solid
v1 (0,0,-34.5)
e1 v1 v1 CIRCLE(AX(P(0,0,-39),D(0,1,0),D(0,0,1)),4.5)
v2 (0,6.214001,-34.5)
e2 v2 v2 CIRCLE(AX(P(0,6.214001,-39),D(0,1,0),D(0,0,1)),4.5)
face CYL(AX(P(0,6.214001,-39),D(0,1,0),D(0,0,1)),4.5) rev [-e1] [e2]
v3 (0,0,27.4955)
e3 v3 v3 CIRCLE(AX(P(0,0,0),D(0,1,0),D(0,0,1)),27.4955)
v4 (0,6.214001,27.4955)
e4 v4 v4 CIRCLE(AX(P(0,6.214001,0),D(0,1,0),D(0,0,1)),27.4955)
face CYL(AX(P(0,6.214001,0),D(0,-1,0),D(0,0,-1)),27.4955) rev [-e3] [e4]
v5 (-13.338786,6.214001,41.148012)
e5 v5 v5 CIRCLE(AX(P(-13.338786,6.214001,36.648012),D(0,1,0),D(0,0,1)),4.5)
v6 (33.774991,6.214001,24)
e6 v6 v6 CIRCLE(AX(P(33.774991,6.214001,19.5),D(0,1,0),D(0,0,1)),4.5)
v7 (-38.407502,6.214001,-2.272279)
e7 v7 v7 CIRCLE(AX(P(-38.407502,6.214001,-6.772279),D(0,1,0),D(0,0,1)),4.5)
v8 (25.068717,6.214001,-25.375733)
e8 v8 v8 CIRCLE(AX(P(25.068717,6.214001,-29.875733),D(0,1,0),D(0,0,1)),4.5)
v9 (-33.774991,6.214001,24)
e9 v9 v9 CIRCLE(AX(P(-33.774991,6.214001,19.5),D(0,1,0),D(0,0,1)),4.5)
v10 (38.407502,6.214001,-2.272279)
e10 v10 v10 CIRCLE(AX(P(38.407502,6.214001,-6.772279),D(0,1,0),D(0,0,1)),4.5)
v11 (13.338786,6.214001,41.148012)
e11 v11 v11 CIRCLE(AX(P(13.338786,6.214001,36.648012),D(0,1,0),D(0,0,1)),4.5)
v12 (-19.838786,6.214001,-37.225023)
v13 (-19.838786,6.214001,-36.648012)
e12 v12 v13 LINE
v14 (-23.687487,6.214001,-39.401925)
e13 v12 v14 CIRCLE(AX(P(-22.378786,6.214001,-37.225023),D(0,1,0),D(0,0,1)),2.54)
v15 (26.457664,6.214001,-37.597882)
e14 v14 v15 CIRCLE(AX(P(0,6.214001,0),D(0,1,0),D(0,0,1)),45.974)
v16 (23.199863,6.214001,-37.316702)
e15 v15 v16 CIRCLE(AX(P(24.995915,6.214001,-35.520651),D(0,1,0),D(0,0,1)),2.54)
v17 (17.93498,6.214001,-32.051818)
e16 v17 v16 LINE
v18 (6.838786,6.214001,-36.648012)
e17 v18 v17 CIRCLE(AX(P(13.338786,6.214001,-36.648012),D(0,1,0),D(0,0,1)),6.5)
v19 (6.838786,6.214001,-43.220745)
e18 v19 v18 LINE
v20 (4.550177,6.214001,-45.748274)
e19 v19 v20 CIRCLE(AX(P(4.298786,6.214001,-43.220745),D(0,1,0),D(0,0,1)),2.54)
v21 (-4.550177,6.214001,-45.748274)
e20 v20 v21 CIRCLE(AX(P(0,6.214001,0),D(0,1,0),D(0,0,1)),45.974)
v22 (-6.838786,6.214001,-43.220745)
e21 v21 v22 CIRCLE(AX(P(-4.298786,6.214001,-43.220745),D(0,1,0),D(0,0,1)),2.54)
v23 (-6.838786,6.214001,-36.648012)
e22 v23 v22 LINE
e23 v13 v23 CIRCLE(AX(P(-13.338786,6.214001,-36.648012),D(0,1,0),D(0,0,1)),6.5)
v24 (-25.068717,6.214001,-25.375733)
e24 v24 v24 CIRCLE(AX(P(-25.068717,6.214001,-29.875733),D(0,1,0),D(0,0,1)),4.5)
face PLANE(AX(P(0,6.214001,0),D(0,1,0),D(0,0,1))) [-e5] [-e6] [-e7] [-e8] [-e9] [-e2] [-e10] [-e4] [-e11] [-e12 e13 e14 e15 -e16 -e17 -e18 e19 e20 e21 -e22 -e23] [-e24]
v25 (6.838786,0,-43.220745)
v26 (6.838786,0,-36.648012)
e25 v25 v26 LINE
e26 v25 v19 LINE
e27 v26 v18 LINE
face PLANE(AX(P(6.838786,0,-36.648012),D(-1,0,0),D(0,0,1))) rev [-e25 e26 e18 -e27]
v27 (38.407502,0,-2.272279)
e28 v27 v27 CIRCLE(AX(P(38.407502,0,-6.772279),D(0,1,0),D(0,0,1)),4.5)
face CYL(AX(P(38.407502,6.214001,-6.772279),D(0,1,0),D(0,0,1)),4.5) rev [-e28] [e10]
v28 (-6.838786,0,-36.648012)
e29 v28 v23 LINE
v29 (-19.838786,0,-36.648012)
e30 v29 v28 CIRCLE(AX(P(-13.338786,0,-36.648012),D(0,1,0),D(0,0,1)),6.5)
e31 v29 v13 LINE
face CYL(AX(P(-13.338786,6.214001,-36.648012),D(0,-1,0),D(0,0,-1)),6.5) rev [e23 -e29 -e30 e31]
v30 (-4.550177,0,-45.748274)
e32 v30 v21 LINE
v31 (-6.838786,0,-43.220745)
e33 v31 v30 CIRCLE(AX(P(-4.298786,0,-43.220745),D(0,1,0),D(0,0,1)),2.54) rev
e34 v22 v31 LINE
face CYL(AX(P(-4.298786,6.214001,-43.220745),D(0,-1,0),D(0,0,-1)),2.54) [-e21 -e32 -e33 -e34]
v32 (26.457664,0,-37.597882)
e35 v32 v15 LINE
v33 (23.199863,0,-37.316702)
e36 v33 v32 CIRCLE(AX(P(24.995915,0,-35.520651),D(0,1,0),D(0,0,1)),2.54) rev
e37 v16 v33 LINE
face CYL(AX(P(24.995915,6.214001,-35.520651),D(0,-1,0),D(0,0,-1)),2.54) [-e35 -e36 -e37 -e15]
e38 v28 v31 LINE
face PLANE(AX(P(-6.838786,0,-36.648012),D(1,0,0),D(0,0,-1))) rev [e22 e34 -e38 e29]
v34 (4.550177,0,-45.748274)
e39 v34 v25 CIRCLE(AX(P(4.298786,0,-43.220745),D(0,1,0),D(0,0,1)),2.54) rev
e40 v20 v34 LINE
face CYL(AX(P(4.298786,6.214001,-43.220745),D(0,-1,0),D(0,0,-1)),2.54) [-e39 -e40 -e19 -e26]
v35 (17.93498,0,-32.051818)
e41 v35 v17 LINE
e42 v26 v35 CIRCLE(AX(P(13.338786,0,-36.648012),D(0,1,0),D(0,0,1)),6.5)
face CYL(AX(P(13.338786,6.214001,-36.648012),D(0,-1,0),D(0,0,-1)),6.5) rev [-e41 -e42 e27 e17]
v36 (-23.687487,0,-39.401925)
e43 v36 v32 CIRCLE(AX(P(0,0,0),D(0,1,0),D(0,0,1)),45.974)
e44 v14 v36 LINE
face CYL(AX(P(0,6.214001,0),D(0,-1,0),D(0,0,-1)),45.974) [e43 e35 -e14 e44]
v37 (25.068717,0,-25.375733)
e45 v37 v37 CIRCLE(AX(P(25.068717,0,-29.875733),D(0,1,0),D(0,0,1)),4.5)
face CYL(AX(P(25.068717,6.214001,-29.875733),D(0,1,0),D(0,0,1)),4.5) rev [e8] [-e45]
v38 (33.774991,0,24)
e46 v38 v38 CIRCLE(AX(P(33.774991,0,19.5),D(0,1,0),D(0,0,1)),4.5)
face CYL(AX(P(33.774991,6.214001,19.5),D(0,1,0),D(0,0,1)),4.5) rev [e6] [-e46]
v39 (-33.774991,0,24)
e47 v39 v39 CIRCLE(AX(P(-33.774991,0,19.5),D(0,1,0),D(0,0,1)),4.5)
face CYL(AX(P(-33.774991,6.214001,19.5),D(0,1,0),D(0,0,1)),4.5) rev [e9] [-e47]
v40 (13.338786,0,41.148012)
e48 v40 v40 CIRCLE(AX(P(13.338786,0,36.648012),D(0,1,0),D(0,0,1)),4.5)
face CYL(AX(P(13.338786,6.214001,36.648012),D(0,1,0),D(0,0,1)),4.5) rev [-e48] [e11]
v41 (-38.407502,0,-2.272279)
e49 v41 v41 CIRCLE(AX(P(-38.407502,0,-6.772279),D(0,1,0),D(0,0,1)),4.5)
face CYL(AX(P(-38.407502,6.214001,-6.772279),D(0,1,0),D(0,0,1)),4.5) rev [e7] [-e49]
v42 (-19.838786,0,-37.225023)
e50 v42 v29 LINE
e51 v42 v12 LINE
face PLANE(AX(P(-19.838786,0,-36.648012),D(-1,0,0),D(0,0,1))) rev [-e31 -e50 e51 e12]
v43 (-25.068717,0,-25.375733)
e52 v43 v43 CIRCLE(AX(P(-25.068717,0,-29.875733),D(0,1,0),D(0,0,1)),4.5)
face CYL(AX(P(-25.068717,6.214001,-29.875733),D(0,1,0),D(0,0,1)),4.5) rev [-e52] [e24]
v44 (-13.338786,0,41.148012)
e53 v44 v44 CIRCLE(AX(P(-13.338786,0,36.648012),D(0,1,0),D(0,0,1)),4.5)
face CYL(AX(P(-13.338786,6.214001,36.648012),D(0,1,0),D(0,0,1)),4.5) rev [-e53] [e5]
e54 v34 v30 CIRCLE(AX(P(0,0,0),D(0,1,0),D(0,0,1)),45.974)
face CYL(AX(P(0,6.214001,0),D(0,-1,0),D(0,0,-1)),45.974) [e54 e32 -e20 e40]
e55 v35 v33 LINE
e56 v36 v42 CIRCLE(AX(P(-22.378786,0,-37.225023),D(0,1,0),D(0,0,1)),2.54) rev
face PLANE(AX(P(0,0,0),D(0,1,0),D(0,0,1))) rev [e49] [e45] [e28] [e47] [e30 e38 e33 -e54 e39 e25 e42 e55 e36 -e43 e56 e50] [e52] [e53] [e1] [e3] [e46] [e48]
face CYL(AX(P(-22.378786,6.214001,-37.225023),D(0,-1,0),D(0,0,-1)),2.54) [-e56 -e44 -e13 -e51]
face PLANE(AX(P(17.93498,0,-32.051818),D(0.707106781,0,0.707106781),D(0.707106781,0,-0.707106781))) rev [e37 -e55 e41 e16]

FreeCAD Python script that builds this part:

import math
import FreeCAD as App
import Part
import Sketcher
from FreeCAD import Vector
Q = App.Units.Quantity


def edges_at(feature, points):
    """Names of the edges that pass closest to the given points."""
    edges = feature.Shape.Edges
    near = lambda p: min(range(len(edges)), key=lambda i: edges[i].distToShape(Part.Vertex(*p))[0])
    return sorted({f"Edge{near(p) + 1}" for p in points})

doc = App.newDocument("Part")
params = doc.addObject("Spreadsheet::Sheet", "Params")
for row, (alias, value) in enumerate([
    ("sketch1_diameter", "3.62 in"),
    ("sketch1_diameter2", "2.165 in"),
    ("pad1_length", "6.214001 mm"),
    ("hole_diameter", "9 mm"),
    ("sketch3_radius", "1.81 in"),
    ("fillet_radius", "0.1 in"),
], start=1):
    params.set(f"A{row}", alias)
    params.set(f"B{row}", "=" + value)
    params.setAlias(f"B{row}", alias)

body = doc.addObject("PartDesign::Body", "Body")

sketch1 = doc.addObject("Sketcher::SketchObject", "Sketch")
body.addObject(sketch1)
sketch1.AttachmentSupport = (doc.XZ_Plane, [""])
sketch1.MapMode = "FlatFace"
sketch1.addGeometry([
    Part.Circle(Vector(0, 0, 0), Vector(0, 0, 1), 45.974),
    Part.Circle(Vector(0, 0, 0), Vector(0, 0, 1), 27.4955),
    Part.Circle(Vector(-13.338786, -36.648012, 0), Vector(0, 0, 1), 6.5),
    Part.Circle(Vector(13.338786, -36.648012, 0), Vector(0, 0, 1), 6.5),
], False)
sketch1.addConstraint([
    Sketcher.Constraint("Coincident", 0, 3, -1, 1),
    Sketcher.Constraint("Coincident", 1, 3, -1, 1),
    Sketcher.Constraint("Equal", 2, 3),
    Sketcher.Constraint("Symmetric", 2, 3, 3, 3, -2),
    Sketcher.Constraint("Diameter", 0, Q("3.62 in")),
    Sketcher.Constraint("Diameter", 1, Q("2.165 in")),
    Sketcher.Constraint("Diameter", 2, Q("13 mm")),
    Sketcher.Constraint("DistanceX", 2, 3, 3, 3, Q("26.677571 mm")),
    Sketcher.Constraint("DistanceY", 2, 3, -1, 1, Q("36.648012 mm")),
])
sketch1.setExpression("Constraints[4]", "Params.sketch1_diameter")
sketch1.setExpression("Constraints[5]", "Params.sketch1_diameter2")
pad1 = doc.addObject("PartDesign::Pad", "Pad")
body.addObject(pad1)
pad1.Profile = sketch1
pad1.setExpression("Length", "Params.pad1_length")
pad1.Reversed = True

sketch2 = doc.addObject("Sketcher::SketchObject", "Sketch001")
body.addObject(sketch2)
sketch2.AttachmentSupport = (doc.XZ_Plane, [""])
sketch2.MapMode = "FlatFace"
sketch2.AttachmentOffset = App.Placement(Vector(0, 0, -6.214001), App.Rotation())
sketch2.addGeometry(Part.Circle(Vector(0, -39, 0), Vector(0, 0, 1), 4.5), False)
sketch2.addConstraint([
    Sketcher.Constraint("PointOnObject", 0, 3, -2),
    Sketcher.Constraint("Diameter", 0, Q("9 mm")),
    Sketcher.Constraint("DistanceY", 0, 3, -1, 1, Q("39 mm")),
])
doc.recompute()
hole = doc.addObject("PartDesign::Hole", "Hole")
body.addObject(hole)
hole.Profile = sketch2
hole.ThreadType = "None"
hole.setExpression("Diameter", "Params.hole_diameter")
hole.DepthType = "ThroughAll"
hole.Reversed = True
doc.recompute()

polarpattern = doc.addObject("PartDesign::PolarPattern", "PolarPattern")
body.addObject(polarpattern)
polarpattern.Originals = [hole]
polarpattern.Axis = (doc.Y_Axis, [""])
polarpattern.Angle = 360
polarpattern.Occurrences = 9
body.Tip = polarpattern

sketch3 = doc.addObject("Sketcher::SketchObject", "Sketch002")
body.addObject(sketch3)
sketch3.AttachmentSupport = (doc.XZ_Plane, [""])
sketch3.MapMode = "FlatFace"
sketch3.AttachmentOffset = App.Placement(Vector(0, 0, -6.214001), App.Rotation())
sketch3.addGeometry([
    Part.LineSegment(Vector(17.93498, -32.051818, 0), Vector(24.674577, -38.791416, 0)),
    Part.ArcOfCircle(Part.Circle(Vector(0, 0, 0), Vector(0, 0, 1), 45.974), math.radians(-81.445313), math.radians(-57.540236)),
    Part.LineSegment(Vector(6.838786, -45.462509, 0), Vector(6.838786, -36.648012, 0)),
    Part.ArcOfCircle(Part.Circle(Vector(13.338786, -36.648012, 0), Vector(0, 0, 1), 6.5), math.radians(180), math.radians(405)),
    Part.LineSegment(Vector(-6.838786, -36.648012, 0), Vector(-6.838786, -45.462509, 0)),
    Part.ArcOfCircle(Part.Circle(Vector(0, 0, 0), Vector(0, 0, 1), 45.974), math.radians(-115.564179), math.radians(-98.554687)),
    Part.LineSegment(Vector(-19.838786, -41.47326, 0), Vector(-19.838786, -36.648012, 0)),
    Part.ArcOfCircle(Part.Circle(Vector(-13.338786, -36.648012, 0), Vector(0, 0, 1), 6.5), math.radians(180), math.radians(360)),
], False)
sketch3.addConstraint([
    Sketcher.Constraint("Coincident", 0, 2, 1, 2),
    Sketcher.Constraint("Coincident", 1, 1, 2, 1),
    Sketcher.Constraint("Tangent", 2, 2, 3, 1),
    Sketcher.Constraint("Tangent", 3, 2, 0, 1),
    Sketcher.Constraint("Coincident", 4, 2, 5, 2),
    Sketcher.Constraint("Coincident", 5, 1, 6, 1),
    Sketcher.Constraint("Tangent", 6, 2, 7, 1),
    Sketcher.Constraint("Tangent", 7, 2, 4, 1),
    Sketcher.Constraint("Vertical", 2),
    Sketcher.Constraint("Vertical", 4),
    Sketcher.Constraint("Vertical", 6),
    Sketcher.Constraint("Coincident", 1, 3, -1, 1),
    Sketcher.Constraint("Coincident", 5, 3, -1, 1),
    Sketcher.Constraint("Equal", 1, 5),
    Sketcher.Constraint("Equal", 3, 7),
    Sketcher.Constraint("Symmetric", 3, 3, 7, 3, -2),
    Sketcher.Constraint("Radius", 1, Q("1.81 in")),
    Sketcher.Constraint("Angle", 0, Q("-45 deg")),
    Sketcher.Constraint("Radius", 3, Q("6.5 mm")),
    Sketcher.Constraint("Distance", 0, Q("9.53123 mm")),
    Sketcher.Constraint("DistanceY", 2, 1, 2, 2, Q("8.814496 mm")),
])
sketch3.setExpression("Constraints[16]", "Params.sketch3_radius")
pocket1 = doc.addObject("PartDesign::Pocket", "Pocket")
body.addObject(pocket1)
pocket1.Profile = sketch3
pocket1.Type = "ThroughAll"
pocket1.Reversed = True
doc.recompute()

fillet = doc.addObject("PartDesign::Fillet", "Fillet")
body.addObject(fillet)
fillet.Base = (pocket1, edges_at(pocket1, [
    (6.839, 3.107, -45.463),
    (24.675, 3.107, -38.791),
    (-19.839, 3.107, -41.473),
    (-6.839, 3.107, -45.463),
]))
fillet.setExpression("Radius", "Params.fillet_radius")

doc.recompute()
